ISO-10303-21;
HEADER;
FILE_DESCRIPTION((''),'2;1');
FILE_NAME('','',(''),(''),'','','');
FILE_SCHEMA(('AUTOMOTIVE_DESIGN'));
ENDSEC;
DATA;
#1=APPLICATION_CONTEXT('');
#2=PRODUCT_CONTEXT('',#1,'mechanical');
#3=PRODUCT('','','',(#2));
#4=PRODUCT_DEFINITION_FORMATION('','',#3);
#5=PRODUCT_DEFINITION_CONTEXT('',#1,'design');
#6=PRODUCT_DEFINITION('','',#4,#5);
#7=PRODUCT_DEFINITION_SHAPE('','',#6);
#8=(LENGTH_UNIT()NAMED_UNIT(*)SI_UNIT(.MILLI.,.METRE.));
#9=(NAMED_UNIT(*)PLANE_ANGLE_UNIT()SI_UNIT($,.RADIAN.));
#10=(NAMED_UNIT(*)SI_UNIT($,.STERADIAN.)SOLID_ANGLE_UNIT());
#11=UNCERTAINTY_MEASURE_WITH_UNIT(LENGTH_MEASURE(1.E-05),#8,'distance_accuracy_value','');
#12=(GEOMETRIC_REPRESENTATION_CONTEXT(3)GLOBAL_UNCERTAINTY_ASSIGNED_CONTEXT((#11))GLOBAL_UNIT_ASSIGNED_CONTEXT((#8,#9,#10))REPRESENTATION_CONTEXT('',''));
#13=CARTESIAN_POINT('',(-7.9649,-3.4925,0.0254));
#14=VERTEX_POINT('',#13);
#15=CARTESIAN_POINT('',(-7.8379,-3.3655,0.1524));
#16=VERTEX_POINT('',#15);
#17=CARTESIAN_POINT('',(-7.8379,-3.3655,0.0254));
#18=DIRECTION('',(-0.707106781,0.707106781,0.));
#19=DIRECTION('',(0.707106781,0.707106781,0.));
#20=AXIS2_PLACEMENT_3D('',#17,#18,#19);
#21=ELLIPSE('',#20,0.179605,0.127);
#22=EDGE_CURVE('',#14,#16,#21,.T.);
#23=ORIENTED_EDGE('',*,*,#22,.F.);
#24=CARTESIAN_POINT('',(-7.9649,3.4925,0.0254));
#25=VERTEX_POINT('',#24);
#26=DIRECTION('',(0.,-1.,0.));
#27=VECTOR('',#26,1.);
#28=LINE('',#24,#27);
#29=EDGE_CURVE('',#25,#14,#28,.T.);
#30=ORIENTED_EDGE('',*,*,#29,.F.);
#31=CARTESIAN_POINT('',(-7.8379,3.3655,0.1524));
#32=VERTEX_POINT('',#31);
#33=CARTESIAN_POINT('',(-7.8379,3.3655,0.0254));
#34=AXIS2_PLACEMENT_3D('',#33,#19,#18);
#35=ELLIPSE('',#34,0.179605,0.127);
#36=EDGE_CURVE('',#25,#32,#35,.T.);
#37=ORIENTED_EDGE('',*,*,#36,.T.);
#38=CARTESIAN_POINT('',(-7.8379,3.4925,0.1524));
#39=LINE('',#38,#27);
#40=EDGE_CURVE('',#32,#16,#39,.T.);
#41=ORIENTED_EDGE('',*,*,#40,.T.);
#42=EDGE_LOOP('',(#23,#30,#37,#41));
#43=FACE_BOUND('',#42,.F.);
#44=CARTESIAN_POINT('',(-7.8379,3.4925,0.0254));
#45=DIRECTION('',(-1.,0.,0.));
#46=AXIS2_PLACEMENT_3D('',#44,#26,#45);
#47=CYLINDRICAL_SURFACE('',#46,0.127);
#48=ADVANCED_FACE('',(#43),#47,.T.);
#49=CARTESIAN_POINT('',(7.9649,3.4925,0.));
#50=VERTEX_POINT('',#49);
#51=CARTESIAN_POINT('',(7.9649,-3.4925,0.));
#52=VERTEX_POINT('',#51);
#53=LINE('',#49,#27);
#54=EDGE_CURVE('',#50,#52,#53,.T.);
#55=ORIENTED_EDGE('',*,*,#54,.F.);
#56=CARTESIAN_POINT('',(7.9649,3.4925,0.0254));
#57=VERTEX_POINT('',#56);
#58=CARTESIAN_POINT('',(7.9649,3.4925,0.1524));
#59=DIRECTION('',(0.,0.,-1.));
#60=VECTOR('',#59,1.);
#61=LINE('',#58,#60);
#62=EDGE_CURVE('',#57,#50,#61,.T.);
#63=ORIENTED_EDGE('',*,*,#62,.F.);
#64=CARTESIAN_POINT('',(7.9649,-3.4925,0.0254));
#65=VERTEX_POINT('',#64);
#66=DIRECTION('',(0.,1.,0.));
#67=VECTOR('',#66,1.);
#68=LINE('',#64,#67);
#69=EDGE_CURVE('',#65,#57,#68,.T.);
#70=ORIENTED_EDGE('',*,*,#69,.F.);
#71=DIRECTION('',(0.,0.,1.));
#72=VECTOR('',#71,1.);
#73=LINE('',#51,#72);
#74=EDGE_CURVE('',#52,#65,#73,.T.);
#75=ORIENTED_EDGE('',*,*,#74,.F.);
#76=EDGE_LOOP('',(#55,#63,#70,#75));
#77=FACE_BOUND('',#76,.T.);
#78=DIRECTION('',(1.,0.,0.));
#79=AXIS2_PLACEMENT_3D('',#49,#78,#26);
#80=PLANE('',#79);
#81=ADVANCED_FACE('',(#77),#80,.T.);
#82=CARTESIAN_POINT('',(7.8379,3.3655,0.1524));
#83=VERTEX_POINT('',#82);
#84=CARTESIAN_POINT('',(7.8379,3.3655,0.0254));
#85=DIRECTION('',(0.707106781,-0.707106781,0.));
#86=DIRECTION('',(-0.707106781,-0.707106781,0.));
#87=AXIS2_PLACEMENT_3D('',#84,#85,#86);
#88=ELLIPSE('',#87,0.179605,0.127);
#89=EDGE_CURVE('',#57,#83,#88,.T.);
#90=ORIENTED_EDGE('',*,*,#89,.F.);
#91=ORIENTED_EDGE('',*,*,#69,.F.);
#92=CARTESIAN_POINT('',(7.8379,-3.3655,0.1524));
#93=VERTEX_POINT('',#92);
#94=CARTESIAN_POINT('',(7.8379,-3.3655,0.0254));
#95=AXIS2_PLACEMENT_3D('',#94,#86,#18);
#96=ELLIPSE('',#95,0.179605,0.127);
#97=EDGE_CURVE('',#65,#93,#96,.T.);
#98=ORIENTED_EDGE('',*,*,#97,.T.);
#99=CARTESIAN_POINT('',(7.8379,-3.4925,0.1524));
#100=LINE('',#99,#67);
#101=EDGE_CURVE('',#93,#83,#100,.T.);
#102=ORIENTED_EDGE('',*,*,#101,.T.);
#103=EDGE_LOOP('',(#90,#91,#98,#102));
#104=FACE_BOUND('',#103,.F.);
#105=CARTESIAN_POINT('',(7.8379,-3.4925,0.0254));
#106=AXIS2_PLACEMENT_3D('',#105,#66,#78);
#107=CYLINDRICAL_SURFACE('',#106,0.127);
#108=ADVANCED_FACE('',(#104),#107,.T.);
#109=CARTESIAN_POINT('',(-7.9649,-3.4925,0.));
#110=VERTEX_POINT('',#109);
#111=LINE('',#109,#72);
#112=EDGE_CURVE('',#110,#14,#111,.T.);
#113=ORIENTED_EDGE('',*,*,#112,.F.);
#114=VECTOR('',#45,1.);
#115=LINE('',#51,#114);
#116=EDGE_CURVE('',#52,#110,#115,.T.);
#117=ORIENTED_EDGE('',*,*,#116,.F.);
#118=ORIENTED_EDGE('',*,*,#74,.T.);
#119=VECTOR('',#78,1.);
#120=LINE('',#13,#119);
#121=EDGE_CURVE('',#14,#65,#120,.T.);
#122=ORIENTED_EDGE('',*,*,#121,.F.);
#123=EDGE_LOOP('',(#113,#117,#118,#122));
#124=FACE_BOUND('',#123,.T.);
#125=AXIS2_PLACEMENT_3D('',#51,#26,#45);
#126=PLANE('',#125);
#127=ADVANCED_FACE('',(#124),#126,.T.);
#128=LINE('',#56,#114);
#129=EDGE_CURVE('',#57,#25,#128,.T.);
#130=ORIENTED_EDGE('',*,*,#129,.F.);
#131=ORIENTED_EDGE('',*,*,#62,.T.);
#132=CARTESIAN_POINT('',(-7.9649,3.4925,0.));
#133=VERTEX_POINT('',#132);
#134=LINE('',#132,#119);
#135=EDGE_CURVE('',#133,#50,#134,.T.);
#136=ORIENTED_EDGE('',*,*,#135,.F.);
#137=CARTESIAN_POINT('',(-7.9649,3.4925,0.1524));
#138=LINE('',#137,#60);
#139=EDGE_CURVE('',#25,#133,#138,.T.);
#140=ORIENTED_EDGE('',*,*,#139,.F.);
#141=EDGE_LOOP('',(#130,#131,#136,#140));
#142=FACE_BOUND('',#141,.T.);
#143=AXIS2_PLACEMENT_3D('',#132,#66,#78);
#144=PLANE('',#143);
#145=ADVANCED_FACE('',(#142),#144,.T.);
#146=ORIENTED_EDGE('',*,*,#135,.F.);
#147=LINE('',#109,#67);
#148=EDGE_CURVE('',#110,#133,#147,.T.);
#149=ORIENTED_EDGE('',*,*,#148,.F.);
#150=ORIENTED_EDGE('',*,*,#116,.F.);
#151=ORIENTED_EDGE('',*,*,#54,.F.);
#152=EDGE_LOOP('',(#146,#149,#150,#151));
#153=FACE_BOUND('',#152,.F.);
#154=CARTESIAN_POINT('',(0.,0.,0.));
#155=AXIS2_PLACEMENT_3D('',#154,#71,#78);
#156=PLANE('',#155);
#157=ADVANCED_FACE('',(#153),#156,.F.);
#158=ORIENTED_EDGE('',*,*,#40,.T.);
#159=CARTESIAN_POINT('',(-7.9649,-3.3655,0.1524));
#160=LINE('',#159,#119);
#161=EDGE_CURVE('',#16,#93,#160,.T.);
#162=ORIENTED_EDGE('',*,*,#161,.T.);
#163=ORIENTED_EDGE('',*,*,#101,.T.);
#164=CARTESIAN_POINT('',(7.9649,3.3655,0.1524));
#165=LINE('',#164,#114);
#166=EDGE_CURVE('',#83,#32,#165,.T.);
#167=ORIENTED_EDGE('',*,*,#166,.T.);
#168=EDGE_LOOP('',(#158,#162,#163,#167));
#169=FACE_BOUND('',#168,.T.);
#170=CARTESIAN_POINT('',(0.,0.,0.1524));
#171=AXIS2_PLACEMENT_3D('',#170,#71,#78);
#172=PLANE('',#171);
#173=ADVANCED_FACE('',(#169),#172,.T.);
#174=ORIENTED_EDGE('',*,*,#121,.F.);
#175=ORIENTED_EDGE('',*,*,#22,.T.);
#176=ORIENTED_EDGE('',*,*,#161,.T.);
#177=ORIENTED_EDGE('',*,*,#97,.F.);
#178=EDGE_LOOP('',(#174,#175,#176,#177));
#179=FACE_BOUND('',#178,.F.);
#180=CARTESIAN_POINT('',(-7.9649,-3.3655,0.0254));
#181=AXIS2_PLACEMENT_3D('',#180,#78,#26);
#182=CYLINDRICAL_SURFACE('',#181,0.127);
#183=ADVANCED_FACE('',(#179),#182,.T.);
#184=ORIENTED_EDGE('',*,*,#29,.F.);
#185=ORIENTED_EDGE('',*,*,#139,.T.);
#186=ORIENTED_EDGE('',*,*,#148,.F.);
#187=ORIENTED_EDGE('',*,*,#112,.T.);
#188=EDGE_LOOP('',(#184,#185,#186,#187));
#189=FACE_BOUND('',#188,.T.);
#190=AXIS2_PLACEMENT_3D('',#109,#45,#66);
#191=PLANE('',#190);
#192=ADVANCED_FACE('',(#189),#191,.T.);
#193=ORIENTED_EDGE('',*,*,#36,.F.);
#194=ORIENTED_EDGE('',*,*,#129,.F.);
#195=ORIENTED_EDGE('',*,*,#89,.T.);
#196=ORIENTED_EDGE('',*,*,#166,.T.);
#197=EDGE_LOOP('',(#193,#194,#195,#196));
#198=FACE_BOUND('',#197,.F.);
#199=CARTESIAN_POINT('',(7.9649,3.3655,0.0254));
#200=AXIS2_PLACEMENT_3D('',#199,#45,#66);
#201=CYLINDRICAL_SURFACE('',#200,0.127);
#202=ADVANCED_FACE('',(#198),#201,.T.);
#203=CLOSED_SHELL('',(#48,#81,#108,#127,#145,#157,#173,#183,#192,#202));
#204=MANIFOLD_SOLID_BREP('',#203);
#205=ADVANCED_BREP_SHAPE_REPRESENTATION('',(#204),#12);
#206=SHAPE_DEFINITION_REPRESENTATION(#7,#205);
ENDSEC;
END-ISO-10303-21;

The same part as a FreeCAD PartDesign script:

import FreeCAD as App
import Part
import Sketcher

V = App.Vector
Q = App.Units.Quantity


def edges_at(feature, points):
    """Names of the edges that pass closest to the given points."""
    edges = feature.Shape.Edges
    near = lambda p: min(range(len(edges)), key=lambda i: edges[i].distToShape(Part.Vertex(*p))[0])
    return sorted({f"Edge{near(p) + 1}" for p in points})


def add_polygon(sketch, points):
    """Adds a closed chain of lines whose ends are joined by coincident constraints."""
    first, n = sketch.GeometryCount, len(points)
    for a, b in zip(points, points[1:] + points[:1]):
        sketch.addGeometry(Part.LineSegment(App.Vector(*a, 0), App.Vector(*b, 0)), False)
    for i in range(n):
        sketch.addConstraint(Sketcher.Constraint("Coincident", first + i, 2, first + (i + 1) % n, 1))

doc = App.newDocument("Part")
body = doc.addObject("PartDesign::Body", "Body")

# Sketch on XY plane
sketch1 = body.newObject("Sketcher::SketchObject", "Sketch")
sketch1.AttachmentSupport = (doc.getObject("XY_Plane"), [""])
sketch1.MapMode = "FlatFace"
add_polygon(sketch1, [(-8, 3), (-8, -3), (8, -3), (8, 3)])  # lines 0-3
sketch1.addConstraint([
    Sketcher.Constraint("Vertical", 0),
    Sketcher.Constraint("Horizontal", 1),
    Sketcher.Constraint("Vertical", 2),
    Sketcher.Constraint("Horizontal", 3),
    Sketcher.Constraint("Symmetric", 0, 2, 2, 2, -1, 1),
    Sketcher.Constraint("DistanceY", 0, 2, 0, 1, Q("0.275 in")),
    Sketcher.Constraint("DistanceX", 1, 1, 1, 2, 15.9298),
])
pad1 = body.newObject("PartDesign::Pad", "Pad")
pad1.Profile = sketch1
pad1.Length = Q("0.001 in")

# Sketch on XY plane
sketch2 = body.newObject("Sketcher::SketchObject", "Sketch001")
sketch2.AttachmentSupport = (doc.getObject("XY_Plane"), [""])
sketch2.MapMode = "FlatFace"
sketch2.AttachmentOffset = App.Placement(V(0, 0, 0.001 * 25.4), App.Rotation())
add_polygon(sketch2, [(8, 3), (-8, 3), (-8, -3), (8, -3)])  # lines 0-3
sketch2.addConstraint([
    Sketcher.Constraint("Horizontal", 0),
    Sketcher.Constraint("Vertical", 1),
    Sketcher.Constraint("Horizontal", 2),
    Sketcher.Constraint("Vertical", 3),
    Sketcher.Constraint("Symmetric", 0, 2, 2, 2, -1, 1),
    Sketcher.Constraint("DistanceY", 1, 2, 1, 1, Q("0.275 in")),
    Sketcher.Constraint("DistanceX", 0, 2, 0, 1, 15.9298),
])
pad2 = body.newObject("PartDesign::Pad", "Pad001")
pad2.Profile = sketch2
pad2.Length = Q("0.005 in")
doc.recompute()

fillet = body.newObject("PartDesign::Fillet", "Fillet")
fillet.Base = (pad2, edges_at(pad2, [
    (0, 3.493, 0.152),
    (7.965, 0, 0.152),
    (0, -3.493, 0.152),
    (-7.965, 0, 0.152),
]))
fillet.Radius = Q("0.005 in")

doc.recompute()
